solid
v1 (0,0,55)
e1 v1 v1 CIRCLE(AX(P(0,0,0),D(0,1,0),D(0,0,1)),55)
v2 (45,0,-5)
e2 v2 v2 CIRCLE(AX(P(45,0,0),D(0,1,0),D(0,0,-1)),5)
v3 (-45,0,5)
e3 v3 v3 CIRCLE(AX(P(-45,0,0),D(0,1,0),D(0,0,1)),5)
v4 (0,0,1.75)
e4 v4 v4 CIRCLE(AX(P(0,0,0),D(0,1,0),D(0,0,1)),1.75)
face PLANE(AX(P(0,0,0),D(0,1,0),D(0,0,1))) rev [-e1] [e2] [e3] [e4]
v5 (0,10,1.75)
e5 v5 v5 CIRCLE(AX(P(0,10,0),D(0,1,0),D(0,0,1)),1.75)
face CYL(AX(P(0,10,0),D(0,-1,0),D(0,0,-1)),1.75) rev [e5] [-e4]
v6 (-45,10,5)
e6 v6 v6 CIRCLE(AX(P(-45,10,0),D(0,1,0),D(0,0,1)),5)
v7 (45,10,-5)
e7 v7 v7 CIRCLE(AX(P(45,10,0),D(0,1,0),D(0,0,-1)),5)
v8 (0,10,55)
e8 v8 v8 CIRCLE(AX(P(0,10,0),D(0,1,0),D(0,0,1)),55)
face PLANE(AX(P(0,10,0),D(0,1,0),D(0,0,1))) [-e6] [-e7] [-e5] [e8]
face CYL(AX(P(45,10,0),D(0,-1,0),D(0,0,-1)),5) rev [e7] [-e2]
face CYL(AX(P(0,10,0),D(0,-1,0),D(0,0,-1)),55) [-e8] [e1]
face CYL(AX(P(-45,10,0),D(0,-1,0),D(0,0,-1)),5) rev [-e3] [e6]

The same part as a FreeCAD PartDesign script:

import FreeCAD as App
import Part
import Sketcher

doc = App.newDocument("Part")
params = doc.addObject("Spreadsheet::Sheet", "Params")
for row, (alias, value) in enumerate([
    ("sketch1_diameter", "110 mm"),
    ("sketch1_diameter2", "10 mm"),
    ("sketch1_diameter3", "3.5 mm"),
    ("pad1_length", "10 mm"),
], start=1):
    params.set(f"A{row}", alias)
    params.set(f"B{row}", "=" + value)
    params.setAlias(f"B{row}", alias)

body = doc.addObject("PartDesign::Body", "Body")

sketch1 = body.newObject("Sketcher::SketchObject", "Sketch")
sketch1.AttachmentSupport = (doc.getObject("XZ_Plane"), [""])
sketch1.MapMode = "FlatFace"
sketch1.addGeometry(Part.Circle(App.Vector(0, 0, 0), App.Vector(0, 0, 1), 55), False)
sketch1.addGeometry(Part.Circle(App.Vector(-45, 0, 0), App.Vector(0, 0, 1), 5), False)
sketch1.addGeometry(Part.Circle(App.Vector(45, 0, 0), App.Vector(0, 0, 1), 5), False)
sketch1.addGeometry(Part.Circle(App.Vector(0, 0, 0), App.Vector(0, 0, 1), 1.8), False)
sketch1.addConstraint(Sketcher.Constraint("Coincident", 0, 3, -1, 1))
sketch1.addConstraint(Sketcher.Constraint("Coincident", 3, 3, -1, 1))
sketch1.addConstraint(Sketcher.Constraint("Equal", 1, 2))
sketch1.addConstraint(Sketcher.Constraint("Symmetric", 1, 3, 2, 3, -1, 1))
sketch1.addConstraint(Sketcher.Constraint("PointOnObject", 1, 3, -1))
sketch1.addConstraint(Sketcher.Constraint("Diameter", 0, 110.0))
sketch1.addConstraint(Sketcher.Constraint("Diameter", 1, 10.0))
sketch1.addConstraint(Sketcher.Constraint("Diameter", 3, 3.5))
sketch1.addConstraint(Sketcher.Constraint("DistanceX", 1, 3, -1, 1, 45.0))
sketch1.setExpression("Constraints[5]", "Params.sketch1_diameter")
sketch1.setExpression("Constraints[6]", "Params.sketch1_diameter2")
sketch1.setExpression("Constraints[7]", "Params.sketch1_diameter3")
pad1 = body.newObject("PartDesign::Pad", "Pad")
pad1.Profile = sketch1
pad1.setExpression("Length", "Params.pad1_length")
pad1.Reversed = True

doc.recompute()
